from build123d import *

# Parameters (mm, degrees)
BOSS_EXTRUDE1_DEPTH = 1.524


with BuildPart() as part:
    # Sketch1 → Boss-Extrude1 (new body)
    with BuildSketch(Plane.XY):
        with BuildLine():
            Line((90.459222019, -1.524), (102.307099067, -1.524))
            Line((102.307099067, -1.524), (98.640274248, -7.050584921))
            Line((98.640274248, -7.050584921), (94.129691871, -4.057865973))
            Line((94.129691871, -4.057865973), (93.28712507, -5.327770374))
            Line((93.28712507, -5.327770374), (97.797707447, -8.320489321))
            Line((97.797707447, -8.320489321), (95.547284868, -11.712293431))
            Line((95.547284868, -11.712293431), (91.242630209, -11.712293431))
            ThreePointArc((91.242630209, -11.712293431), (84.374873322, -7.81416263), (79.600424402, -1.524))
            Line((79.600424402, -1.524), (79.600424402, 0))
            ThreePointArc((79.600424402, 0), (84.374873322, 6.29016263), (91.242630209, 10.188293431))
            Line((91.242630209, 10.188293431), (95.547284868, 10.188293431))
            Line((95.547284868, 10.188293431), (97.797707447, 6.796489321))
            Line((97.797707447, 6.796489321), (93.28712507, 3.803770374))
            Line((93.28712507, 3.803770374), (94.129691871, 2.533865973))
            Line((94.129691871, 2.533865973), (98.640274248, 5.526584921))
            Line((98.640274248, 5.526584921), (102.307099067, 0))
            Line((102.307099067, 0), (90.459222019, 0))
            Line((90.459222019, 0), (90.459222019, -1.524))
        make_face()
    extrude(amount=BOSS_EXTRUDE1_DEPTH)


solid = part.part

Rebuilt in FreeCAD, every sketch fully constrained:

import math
import FreeCAD as App
import Part
import Sketcher
from FreeCAD import Vector
Q = App.Units.Quantity

doc = App.newDocument("Part")
body = doc.addObject("PartDesign::Body", "Body")

sketch1 = doc.addObject("Sketcher::SketchObject", "Sketch")
body.addObject(sketch1)
sketch1.AttachmentSupport = (doc.XY_Plane, [""])
sketch1.MapMode = "FlatFace"
sketch1.addGeometry(Part.LineSegment(Vector(102.3, -1.5, 0), Vector(90.5, -1.5, 0)), False)
sketch1.addGeometry(Part.LineSegment(Vector(90.5, -1.5, 0), Vector(90.5, 0, 0)), False)
sketch1.addGeometry(Part.LineSegment(Vector(90.5, 0, 0), Vector(102.3, 0, 0)), False)
sketch1.addGeometry(Part.LineSegment(Vector(102.3, 0, 0), Vector(98.6, 5.5, 0)), False)
sketch1.addGeometry(Part.LineSegment(Vector(98.6, 5.5, 0), Vector(94.1, 2.5, 0)), False)
sketch1.addGeometry(Part.LineSegment(Vector(94.1, 2.5, 0), Vector(93.3, 3.8, 0)), False)
sketch1.addGeometry(Part.LineSegment(Vector(93.3, 3.8, 0), Vector(97.8, 6.8, 0)), False)
sketch1.addGeometry(Part.LineSegment(Vector(97.8, 6.8, 0), Vector(95.5, 10.2, 0)), False)
sketch1.addGeometry(Part.LineSegment(Vector(95.5, 10.2, 0), Vector(91.2, 10.2, 0)), False)
sketch1.addGeometry(Part.ArcOfCircle(Part.Circle(Vector(97.3, -8.5, 0), Vector(0, 0, 1), 19.6), math.radians(108), math.radians(154)), False)
sketch1.addGeometry(Part.LineSegment(Vector(79.6, 0, 0), Vector(79.6, -1.5, 0)), False)
sketch1.addGeometry(Part.ArcOfCircle(Part.Circle(Vector(97.3, 6.9, 0), Vector(0, 0, 1), 19.6), math.radians(-154), math.radians(-108)), False)
sketch1.addGeometry(Part.LineSegment(Vector(91.2, -11.7, 0), Vector(95.5, -11.7, 0)), False)
sketch1.addGeometry(Part.LineSegment(Vector(95.5, -11.7, 0), Vector(97.8, -8.3, 0)), False)
sketch1.addGeometry(Part.LineSegment(Vector(97.8, -8.3, 0), Vector(93.3, -5.3, 0)), False)
sketch1.addGeometry(Part.LineSegment(Vector(93.3, -5.3, 0), Vector(94.1, -4.1, 0)), False)
sketch1.addGeometry(Part.LineSegment(Vector(94.1, -4.1, 0), Vector(98.6, -7.1, 0)), False)
sketch1.addGeometry(Part.LineSegment(Vector(98.6, -7.1, 0), Vector(102.3, -1.5, 0)), False)
sketch1.addConstraint(Sketcher.Constraint("Coincident", 0, 2, 1, 1))
sketch1.addConstraint(Sketcher.Constraint("Coincident", 1, 2, 2, 1))
sketch1.addConstraint(Sketcher.Constraint("Coincident", 2, 2, 3, 1))
sketch1.addConstraint(Sketcher.Constraint("Coincident", 3, 2, 4, 1))
sketch1.addConstraint(Sketcher.Constraint("Coincident", 4, 2, 5, 1))
sketch1.addConstraint(Sketcher.Constraint("Coincident", 5, 2, 6, 1))
sketch1.addConstraint(Sketcher.Constraint("Coincident", 6, 2, 7, 1))
sketch1.addConstraint(Sketcher.Constraint("Coincident", 7, 2, 8, 1))
sketch1.addConstraint(Sketcher.Constraint("Coincident", 8, 2, 9, 1))
sketch1.addConstraint(Sketcher.Constraint("Coincident", 9, 2, 10, 1))
sketch1.addConstraint(Sketcher.Constraint("Coincident", 10, 2, 11, 1))
sketch1.addConstraint(Sketcher.Constraint("Coincident", 11, 2, 12, 1))
sketch1.addConstraint(Sketcher.Constraint("Coincident", 12, 2, 13, 1))
sketch1.addConstraint(Sketcher.Constraint("Coincident", 13, 2, 14, 1))
sketch1.addConstraint(Sketcher.Constraint("Coincident", 14, 2, 15, 1))
sketch1.addConstraint(Sketcher.Constraint("Coincident", 15, 2, 16, 1))
sketch1.addConstraint(Sketcher.Constraint("Coincident", 16, 2, 17, 1))
sketch1.addConstraint(Sketcher.Constraint("Coincident", 17, 2, 0, 1))
sketch1.addConstraint(Sketcher.Constraint("Horizontal", 0))
sketch1.addConstraint(Sketcher.Constraint("Vertical", 1))
sketch1.addConstraint(Sketcher.Constraint("Horizontal", 2))
sketch1.addConstraint(Sketcher.Constraint("Horizontal", 8))
sketch1.addConstraint(Sketcher.Constraint("Vertical", 10))
sketch1.addConstraint(Sketcher.Constraint("Horizontal", 12))
sketch1.addConstraint(Sketcher.Constraint("Equal", 9, 11))
sketch1.addConstraint(Sketcher.Constraint("PointOnObject", 1, 2, -1))
sketch1.addConstraint(Sketcher.Constraint("PointOnObject", 9, 2, -1))
sketch1.addConstraint(Sketcher.Constraint("Perpendicular", 3, 4))
sketch1.addConstraint(Sketcher.Constraint("Perpendicular", 4, 5))
sketch1.addConstraint(Sketcher.Constraint("Perpendicular", 5, 6))
sketch1.addConstraint(Sketcher.Constraint("Perpendicular", 6, 7))
sketch1.addConstraint(Sketcher.Constraint("Perpendicular", 13, 14))
sketch1.addConstraint(Sketcher.Constraint("Perpendicular", 14, 15))
sketch1.addConstraint(Sketcher.Constraint("Perpendicular", 15, 16))
sketch1.addConstraint(Sketcher.Constraint("Perpendicular", 16, 17))
sketch1.addConstraint(Sketcher.Constraint("Horizontal", 0, 2, 10, 2))
sketch1.addConstraint(Sketcher.Constraint("Vertical", 9, 3, 11, 3))
sketch1.addConstraint(Sketcher.Constraint("Vertical", 8, 2, 11, 2))
sketch1.addConstraint(Sketcher.Constraint("Vertical", 7, 2, 12, 2))
sketch1.addConstraint(Sketcher.Constraint("Vertical", 6, 2, 13, 2))
sketch1.addConstraint(Sketcher.Constraint("Vertical", 5, 2, 14, 2))
sketch1.addConstraint(Sketcher.Constraint("Vertical", 4, 2, 15, 2))
sketch1.addConstraint(Sketcher.Constraint("Vertical", 3, 2, 16, 2))
sketch1.addConstraint(Sketcher.Constraint("Vertical", 2, 2, 17, 2))
sketch1.addConstraint(Sketcher.Constraint("Equal", 4, 6))
sketch1.addConstraint(Sketcher.Constraint("DistanceY", 1, 1, 1, 2, Q("0.06 in")))
sketch1.addConstraint(Sketcher.Constraint("Distance", 5, Q("0.06 in")))
sketch1.addConstraint(Sketcher.Constraint("Radius", 9, 19.618926))
sketch1.addConstraint(Sketcher.Constraint("Distance", 3, 6.632401))
sketch1.addConstraint(Sketcher.Constraint("DistanceX", -1, 1, 2, 2, 102.307099))
sketch1.addConstraint(Sketcher.Constraint("DistanceX", 9, 2, 5, 2, 13.686701))
sketch1.addConstraint(Sketcher.Constraint("Distance", 7, 4.070471))
sketch1.addConstraint(Sketcher.Constraint("DistanceX", 0, 2, 0, 1, 11.847877))
sketch1.addConstraint(Sketcher.Constraint("DistanceX", 8, 2, 8, 1, 4.304655))
sketch1.addConstraint(Sketcher.Constraint("DistanceX", -1, 1, 4, 2, 94.129692))
sketch1.addConstraint(Sketcher.Constraint("DistanceY", -1, 1, 5, 2, 3.80377))
pad1 = doc.addObject("PartDesign::Pad", "Pad")
body.addObject(pad1)
pad1.Profile = sketch1
pad1.Length = Q("0.06 in")

doc.recompute()
